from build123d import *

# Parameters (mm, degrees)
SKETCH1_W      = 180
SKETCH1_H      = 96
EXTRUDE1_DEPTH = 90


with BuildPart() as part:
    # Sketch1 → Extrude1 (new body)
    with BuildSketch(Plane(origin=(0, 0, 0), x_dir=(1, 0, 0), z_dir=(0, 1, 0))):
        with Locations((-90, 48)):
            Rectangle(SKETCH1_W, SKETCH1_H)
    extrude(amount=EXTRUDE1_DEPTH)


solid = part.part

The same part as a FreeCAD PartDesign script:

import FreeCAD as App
import Part
import Sketcher
from FreeCAD import Vector


def add_polygon(sketch, points):
    """Adds a closed chain of lines whose ends are joined by coincident constraints."""
    first, n = sketch.GeometryCount, len(points)
    for a, b in zip(points, points[1:] + points[:1]):
        sketch.addGeometry(Part.LineSegment(App.Vector(*a, 0), App.Vector(*b, 0)), False)
    for i in range(n):
        sketch.addConstraint(Sketcher.Constraint("Coincident", first + i, 2, first + (i + 1) % n, 1))

doc = App.newDocument("Part")
body = doc.addObject("PartDesign::Body", "Body")

# Sketch on XZ plane
sketch1 = body.newObject("Sketcher::SketchObject", "Sketch")
sketch1.AttachmentSupport = (doc.getObject("XZ_Plane"), [""])
sketch1.MapMode = "FlatFace"
add_polygon(sketch1, [(-180, -96), (-180, 0), (0, 0), (0, -96)])  # lines 0-3
sketch1.addConstraint([
    Sketcher.Constraint("Vertical", 0),
    Sketcher.Constraint("Horizontal", 1),
    Sketcher.Constraint("Vertical", 2),
    Sketcher.Constraint("Horizontal", 3),
    Sketcher.Constraint("Coincident", 1, 2, -1, 1),
    Sketcher.Constraint("DistanceX", 1, 1, 1, 2, 180.0),
    Sketcher.Constraint("DistanceY", 0, 1, 0, 2, 96.0),
])
pad1 = body.newObject("PartDesign::Pad", "Pad")
pad1.Profile = sketch1
pad1.Length = 90
pad1.Reversed = True

doc.recompute()
